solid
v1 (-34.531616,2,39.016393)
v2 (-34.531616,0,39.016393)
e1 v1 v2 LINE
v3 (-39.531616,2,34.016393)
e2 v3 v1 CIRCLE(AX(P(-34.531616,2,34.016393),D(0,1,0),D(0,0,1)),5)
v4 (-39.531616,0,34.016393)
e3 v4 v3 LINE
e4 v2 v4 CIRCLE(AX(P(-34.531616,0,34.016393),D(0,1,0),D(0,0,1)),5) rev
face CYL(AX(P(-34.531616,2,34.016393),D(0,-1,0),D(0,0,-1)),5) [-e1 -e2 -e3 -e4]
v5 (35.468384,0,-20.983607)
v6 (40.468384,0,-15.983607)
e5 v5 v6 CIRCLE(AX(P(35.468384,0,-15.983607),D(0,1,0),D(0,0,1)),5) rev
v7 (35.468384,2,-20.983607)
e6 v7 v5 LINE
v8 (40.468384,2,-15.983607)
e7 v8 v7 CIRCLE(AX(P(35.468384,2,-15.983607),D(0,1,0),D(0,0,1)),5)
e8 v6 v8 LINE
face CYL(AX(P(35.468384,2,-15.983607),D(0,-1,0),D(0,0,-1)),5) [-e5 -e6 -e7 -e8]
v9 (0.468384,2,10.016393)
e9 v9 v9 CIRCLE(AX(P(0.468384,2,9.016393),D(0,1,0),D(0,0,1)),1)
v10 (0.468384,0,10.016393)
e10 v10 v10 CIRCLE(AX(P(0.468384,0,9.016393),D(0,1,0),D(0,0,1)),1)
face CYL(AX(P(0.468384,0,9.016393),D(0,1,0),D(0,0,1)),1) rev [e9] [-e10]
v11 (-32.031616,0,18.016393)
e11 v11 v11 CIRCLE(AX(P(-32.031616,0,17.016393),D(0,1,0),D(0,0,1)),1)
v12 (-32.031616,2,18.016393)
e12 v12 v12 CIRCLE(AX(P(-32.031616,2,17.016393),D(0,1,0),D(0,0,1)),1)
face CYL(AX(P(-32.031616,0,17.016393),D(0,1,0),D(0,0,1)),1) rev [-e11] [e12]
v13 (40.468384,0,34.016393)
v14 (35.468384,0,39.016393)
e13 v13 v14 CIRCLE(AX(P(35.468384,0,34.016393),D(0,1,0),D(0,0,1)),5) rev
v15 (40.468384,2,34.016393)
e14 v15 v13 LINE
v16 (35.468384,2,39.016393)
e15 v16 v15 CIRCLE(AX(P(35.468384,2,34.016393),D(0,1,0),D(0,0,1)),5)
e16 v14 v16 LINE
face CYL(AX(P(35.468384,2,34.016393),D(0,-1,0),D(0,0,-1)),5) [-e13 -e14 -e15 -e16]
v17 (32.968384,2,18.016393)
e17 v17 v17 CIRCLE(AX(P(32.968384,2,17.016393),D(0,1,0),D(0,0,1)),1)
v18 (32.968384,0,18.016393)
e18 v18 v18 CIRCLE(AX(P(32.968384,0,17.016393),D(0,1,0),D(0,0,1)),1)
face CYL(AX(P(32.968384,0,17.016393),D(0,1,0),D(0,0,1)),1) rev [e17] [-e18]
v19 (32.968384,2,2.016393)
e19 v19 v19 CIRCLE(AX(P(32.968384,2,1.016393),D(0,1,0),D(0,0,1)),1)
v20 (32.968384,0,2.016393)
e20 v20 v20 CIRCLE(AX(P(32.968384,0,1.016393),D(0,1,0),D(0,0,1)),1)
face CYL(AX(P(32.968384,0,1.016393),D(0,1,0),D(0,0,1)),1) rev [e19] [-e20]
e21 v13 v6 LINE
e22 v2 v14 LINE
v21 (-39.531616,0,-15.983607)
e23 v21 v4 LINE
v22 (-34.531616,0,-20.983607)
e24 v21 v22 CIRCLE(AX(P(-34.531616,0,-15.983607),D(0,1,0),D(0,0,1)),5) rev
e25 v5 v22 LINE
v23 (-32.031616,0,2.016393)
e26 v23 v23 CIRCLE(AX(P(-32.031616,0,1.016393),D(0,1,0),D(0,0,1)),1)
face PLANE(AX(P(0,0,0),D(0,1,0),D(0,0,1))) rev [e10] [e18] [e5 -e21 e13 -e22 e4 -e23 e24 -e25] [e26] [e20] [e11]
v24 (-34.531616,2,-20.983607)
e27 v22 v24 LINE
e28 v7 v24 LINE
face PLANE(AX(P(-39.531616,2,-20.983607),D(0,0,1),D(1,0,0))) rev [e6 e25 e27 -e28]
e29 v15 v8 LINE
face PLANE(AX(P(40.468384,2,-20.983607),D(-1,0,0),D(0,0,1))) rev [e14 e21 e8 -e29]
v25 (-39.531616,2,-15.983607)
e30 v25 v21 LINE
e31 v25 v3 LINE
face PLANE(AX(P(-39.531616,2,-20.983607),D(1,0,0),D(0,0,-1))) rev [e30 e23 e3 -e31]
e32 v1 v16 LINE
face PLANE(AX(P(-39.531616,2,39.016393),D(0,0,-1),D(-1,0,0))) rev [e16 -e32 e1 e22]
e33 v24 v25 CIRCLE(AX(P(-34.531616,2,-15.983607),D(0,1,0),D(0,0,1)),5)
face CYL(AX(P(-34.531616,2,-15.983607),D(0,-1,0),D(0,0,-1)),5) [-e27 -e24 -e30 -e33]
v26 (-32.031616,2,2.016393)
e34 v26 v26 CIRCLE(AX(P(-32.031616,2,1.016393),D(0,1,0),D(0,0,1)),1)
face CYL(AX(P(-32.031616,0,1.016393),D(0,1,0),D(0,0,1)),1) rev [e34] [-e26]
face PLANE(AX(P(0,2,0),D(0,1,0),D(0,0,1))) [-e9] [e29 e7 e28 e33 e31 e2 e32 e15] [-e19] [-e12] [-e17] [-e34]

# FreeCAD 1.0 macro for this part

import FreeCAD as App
import Part
import Sketcher


def edges_at(feature, points):
    """Names of the edges that pass closest to the given points."""
    edges = feature.Shape.Edges
    near = lambda p: min(range(len(edges)), key=lambda i: edges[i].distToShape(Part.Vertex(*p))[0])
    return sorted({f"Edge{near(p) + 1}" for p in points})


def add_polygon(sketch, points):
    """Adds a closed chain of lines whose ends are joined by coincident constraints."""
    first, n = sketch.GeometryCount, len(points)
    for a, b in zip(points, points[1:] + points[:1]):
        sketch.addGeometry(Part.LineSegment(App.Vector(*a, 0), App.Vector(*b, 0)), False)
    for i in range(n):
        sketch.addConstraint(Sketcher.Constraint("Coincident", first + i, 2, first + (i + 1) % n, 1))

doc = App.newDocument("Part")
body = doc.addObject("PartDesign::Body", "Body")

# Sketch on XZ plane
sketch1 = body.newObject("Sketcher::SketchObject", "Sketch")
sketch1.AttachmentSupport = (doc.getObject("XZ_Plane"), [""])
sketch1.MapMode = "FlatFace"
add_polygon(sketch1, [(-40, -21), (-40, 39), (40, 39), (40, -21)])  # lines 0-3
sketch1.addConstraint([
    Sketcher.Constraint("Vertical", 0),
    Sketcher.Constraint("Horizontal", 1),
    Sketcher.Constraint("Vertical", 2),
    Sketcher.Constraint("Horizontal", 3),
    Sketcher.Constraint("DistanceX", 1, 1, 1, 2, 80.0),
    Sketcher.Constraint("DistanceY", 0, 1, 0, 2, 60.0),
    Sketcher.Constraint("DistanceX", 0, 2, -1, 1, 39.531616),
    Sketcher.Constraint("DistanceY", -1, 1, 0, 2, 39.016393),
])
pad1 = body.newObject("PartDesign::Pad", "Pad")
pad1.Profile = sketch1
pad1.Length = 2
pad1.Reversed = True

# Sketch on XZ plane
sketch2 = body.newObject("Sketcher::SketchObject", "Sketch001")
sketch2.AttachmentSupport = (doc.getObject("XZ_Plane"), [""])
sketch2.MapMode = "FlatFace"
sketch2.AttachmentOffset = App.Placement(App.Vector(0, 0, -2), App.Rotation())
sketch2.addGeometry([
    Part.Circle(App.Vector(-32, 1, 0), App.Vector(0, 0, 1), 1),  # 0
    Part.Circle(App.Vector(-32, 17, 0), App.Vector(0, 0, 1), 1),  # 1
    Part.Circle(App.Vector(33, 1, 0), App.Vector(0, 0, 1), 1),  # 2
    Part.Circle(App.Vector(33, 17, 0), App.Vector(0, 0, 1), 1),  # 3
    Part.Circle(App.Vector(0.5, 9, 0), App.Vector(0, 0, 1), 1),  # 4
], False)
sketch2.addConstraint([
    Sketcher.Constraint("Equal", 0, 1),
    Sketcher.Constraint("Equal", 1, 2),
    Sketcher.Constraint("Equal", 2, 3),
    Sketcher.Constraint("Equal", 3, 4),
    Sketcher.Constraint("Horizontal", 0, 3, 2, 3),
    Sketcher.Constraint("Horizontal", 1, 3, 3, 3),
    Sketcher.Constraint("Vertical", 0, 3, 1, 3),
    Sketcher.Constraint("Vertical", 2, 3, 3, 3),
    Sketcher.Constraint("Diameter", 0, 2.0),
    Sketcher.Constraint("DistanceY", 0, 3, 1, 3, 16.0),
    Sketcher.Constraint("DistanceX", 0, 3, 2, 3, 65.0),
    Sketcher.Constraint("DistanceY", 0, 3, 4, 3, 8.0),
    Sketcher.Constraint("DistanceX", 0, 3, 4, 3, 32.5),
    Sketcher.Constraint("DistanceX", 0, 3, -1, 1, 32.031616),
    Sketcher.Constraint("DistanceY", -1, 1, 0, 3, 1.016393),
])
pocket1 = body.newObject("PartDesign::Pocket", "Pocket")
pocket1.Profile = sketch2
pocket1.Length = 2
pocket1.Reversed = True
doc.recompute()

fillet = body.newObject("PartDesign::Fillet", "Fillet")
fillet.Base = (pocket1, edges_at(pocket1, [
    (-39.532, 1, -20.984),
    (40.468, 1, -20.984),
    (40.468, 1, 39.016),
    (-39.532, 1, 39.016),
]))
fillet.Radius = 5

doc.recompute()
